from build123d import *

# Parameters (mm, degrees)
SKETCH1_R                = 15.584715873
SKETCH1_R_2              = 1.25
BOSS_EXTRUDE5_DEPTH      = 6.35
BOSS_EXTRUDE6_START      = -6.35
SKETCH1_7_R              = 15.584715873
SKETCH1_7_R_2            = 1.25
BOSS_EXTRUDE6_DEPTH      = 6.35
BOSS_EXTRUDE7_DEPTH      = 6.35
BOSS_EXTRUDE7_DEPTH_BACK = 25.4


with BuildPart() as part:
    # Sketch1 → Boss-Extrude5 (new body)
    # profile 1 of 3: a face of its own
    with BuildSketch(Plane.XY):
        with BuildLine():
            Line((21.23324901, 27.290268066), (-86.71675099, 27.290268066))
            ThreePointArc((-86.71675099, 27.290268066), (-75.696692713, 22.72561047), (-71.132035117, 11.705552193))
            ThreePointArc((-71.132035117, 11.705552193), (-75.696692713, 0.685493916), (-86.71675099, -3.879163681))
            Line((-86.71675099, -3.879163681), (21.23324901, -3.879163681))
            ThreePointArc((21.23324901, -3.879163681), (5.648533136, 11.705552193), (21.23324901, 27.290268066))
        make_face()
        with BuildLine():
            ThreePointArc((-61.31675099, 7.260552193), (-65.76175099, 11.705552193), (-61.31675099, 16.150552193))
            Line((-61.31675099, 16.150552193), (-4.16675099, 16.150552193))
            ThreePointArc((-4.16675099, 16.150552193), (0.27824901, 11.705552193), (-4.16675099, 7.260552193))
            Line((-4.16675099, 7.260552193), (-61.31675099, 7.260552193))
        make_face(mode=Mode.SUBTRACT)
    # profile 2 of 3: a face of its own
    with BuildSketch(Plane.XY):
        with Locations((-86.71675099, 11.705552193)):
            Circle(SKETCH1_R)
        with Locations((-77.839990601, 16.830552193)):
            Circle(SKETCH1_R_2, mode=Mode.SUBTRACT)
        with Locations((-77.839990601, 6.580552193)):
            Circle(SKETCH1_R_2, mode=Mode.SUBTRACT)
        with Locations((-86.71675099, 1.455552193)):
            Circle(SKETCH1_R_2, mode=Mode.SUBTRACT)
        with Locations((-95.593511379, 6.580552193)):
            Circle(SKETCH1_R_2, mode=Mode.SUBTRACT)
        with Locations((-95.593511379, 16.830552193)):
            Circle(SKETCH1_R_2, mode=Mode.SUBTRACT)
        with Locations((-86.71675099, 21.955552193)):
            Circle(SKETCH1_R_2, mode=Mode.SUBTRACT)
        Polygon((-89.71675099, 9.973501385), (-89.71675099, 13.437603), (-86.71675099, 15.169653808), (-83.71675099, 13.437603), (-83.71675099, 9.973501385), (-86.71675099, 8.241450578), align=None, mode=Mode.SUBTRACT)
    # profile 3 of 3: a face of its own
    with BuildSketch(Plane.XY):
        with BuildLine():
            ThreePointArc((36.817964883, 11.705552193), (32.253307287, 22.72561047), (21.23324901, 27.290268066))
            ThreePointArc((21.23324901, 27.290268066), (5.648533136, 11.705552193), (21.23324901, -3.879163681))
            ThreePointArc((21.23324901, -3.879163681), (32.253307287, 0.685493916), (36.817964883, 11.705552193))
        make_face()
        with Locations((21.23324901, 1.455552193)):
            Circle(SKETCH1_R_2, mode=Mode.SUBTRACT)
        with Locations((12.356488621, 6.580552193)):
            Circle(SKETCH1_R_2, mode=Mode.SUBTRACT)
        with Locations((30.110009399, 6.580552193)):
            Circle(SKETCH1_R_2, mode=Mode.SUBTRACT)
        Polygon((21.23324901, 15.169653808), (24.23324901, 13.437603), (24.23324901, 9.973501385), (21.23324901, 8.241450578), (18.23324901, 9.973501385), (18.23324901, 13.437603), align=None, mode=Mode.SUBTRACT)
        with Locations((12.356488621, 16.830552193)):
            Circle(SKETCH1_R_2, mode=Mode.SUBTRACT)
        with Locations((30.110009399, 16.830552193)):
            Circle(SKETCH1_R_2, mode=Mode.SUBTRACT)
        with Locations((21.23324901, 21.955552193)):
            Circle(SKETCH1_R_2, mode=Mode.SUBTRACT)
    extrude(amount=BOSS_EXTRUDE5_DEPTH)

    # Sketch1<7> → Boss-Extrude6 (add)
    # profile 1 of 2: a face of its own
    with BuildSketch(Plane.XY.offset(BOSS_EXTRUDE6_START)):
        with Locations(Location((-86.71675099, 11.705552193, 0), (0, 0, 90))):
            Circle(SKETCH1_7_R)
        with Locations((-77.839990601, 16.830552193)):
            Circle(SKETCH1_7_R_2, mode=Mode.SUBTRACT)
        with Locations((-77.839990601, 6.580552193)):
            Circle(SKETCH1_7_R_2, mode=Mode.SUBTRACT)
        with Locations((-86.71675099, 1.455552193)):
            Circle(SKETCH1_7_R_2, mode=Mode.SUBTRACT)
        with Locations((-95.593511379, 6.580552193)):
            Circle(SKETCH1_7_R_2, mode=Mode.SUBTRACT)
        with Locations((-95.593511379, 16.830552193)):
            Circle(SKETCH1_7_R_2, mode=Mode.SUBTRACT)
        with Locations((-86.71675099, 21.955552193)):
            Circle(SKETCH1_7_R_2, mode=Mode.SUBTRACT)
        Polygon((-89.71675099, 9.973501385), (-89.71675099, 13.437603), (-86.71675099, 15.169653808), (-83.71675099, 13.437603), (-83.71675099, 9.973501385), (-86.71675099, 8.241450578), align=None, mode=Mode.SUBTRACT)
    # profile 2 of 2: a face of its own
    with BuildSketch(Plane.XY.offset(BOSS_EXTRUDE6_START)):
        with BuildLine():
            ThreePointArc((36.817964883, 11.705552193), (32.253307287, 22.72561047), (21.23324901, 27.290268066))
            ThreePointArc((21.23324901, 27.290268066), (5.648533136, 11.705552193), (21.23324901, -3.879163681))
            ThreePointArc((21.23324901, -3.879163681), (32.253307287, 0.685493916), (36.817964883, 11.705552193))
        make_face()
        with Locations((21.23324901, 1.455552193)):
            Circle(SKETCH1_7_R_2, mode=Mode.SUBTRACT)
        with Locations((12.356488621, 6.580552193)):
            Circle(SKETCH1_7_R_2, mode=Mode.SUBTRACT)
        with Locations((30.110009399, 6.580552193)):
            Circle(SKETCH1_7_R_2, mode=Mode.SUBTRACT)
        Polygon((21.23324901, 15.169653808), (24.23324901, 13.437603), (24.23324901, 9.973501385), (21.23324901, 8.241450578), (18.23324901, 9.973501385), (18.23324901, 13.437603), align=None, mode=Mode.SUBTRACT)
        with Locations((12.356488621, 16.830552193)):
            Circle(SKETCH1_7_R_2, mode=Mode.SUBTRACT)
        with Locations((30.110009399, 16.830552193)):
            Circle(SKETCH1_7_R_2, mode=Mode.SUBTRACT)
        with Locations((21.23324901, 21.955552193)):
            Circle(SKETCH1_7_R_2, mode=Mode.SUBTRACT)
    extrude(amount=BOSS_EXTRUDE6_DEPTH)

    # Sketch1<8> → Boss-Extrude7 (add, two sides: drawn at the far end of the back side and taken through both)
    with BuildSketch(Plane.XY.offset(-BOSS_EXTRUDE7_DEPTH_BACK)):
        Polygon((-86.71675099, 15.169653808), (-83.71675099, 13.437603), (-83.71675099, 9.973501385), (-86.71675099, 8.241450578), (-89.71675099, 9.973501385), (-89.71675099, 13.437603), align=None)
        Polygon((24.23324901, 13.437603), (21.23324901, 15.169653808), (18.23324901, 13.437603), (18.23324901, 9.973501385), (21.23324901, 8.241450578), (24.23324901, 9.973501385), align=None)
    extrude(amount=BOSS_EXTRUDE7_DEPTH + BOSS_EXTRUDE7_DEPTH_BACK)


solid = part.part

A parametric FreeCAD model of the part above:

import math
import FreeCAD as App
import Part
import Sketcher
from FreeCAD import Vector
Q = App.Units.Quantity


def add_polygon(sketch, points):
    """Adds a closed chain of lines whose ends are joined by coincident constraints."""
    first, n = sketch.GeometryCount, len(points)
    for a, b in zip(points, points[1:] + points[:1]):
        sketch.addGeometry(Part.LineSegment(App.Vector(*a, 0), App.Vector(*b, 0)), False)
    for i in range(n):
        sketch.addConstraint(Sketcher.Constraint("Coincident", first + i, 2, first + (i + 1) % n, 1))

doc = App.newDocument("Part")
body = doc.addObject("PartDesign::Body", "Body")

# Sketch on XY plane
sketch1 = doc.addObject("Sketcher::SketchObject", "Sketch")
body.addObject(sketch1)
sketch1.AttachmentSupport = (doc.XY_Plane, [""])
sketch1.MapMode = "FlatFace"
sketch1.addGeometry(Part.LineSegment(Vector(21.233249, 27.290268, 0), Vector(-86.716751, 27.290268, 0)), False)  # 0
sketch1.addGeometry(Part.ArcOfCircle(Part.Circle(Vector(-86.716751, 11.705552, 0), Vector(0, 0, 1), 15.584716), math.radians(90), math.radians(270)), False)  # 1
sketch1.addGeometry(Part.LineSegment(Vector(-86.716751, -3.879164, 0), Vector(21.233249, -3.879164, 0)), False)  # 2
sketch1.addGeometry(Part.ArcOfCircle(Part.Circle(Vector(21.233249, 11.705552, 0), Vector(0, 0, 1), 15.584716), math.radians(-90), math.radians(0)), False)  # 3
sketch1.addGeometry(Part.ArcOfCircle(Part.Circle(Vector(21.233249, 11.705552, 0), Vector(0, 0, 1), 15.584716), math.radians(0), math.radians(90)), False)  # 4
sketch1.addGeometry(Part.LineSegment(Vector(-4.166751, 7.260552, 0), Vector(-61.316751, 7.260552, 0)), False)  # 5
sketch1.addGeometry(Part.ArcOfCircle(Part.Circle(Vector(-61.316751, 11.705552, 0), Vector(0, 0, 1), 4.445), math.radians(90), math.radians(270)), False)  # 6
sketch1.addGeometry(Part.LineSegment(Vector(-61.316751, 16.150552, 0), Vector(-4.166751, 16.150552, 0)), False)  # 7
sketch1.addGeometry(Part.ArcOfCircle(Part.Circle(Vector(-4.166751, 11.705552, 0), Vector(0, 0, 1), 4.445), math.radians(-90), math.radians(90)), False)  # 8
sketch1.addGeometry(Part.Circle(Vector(21.233249, 21.955552, 0), Vector(0, 0, 1), 1.25), False)  # 9
sketch1.addGeometry(Part.Circle(Vector(12.356489, 6.580552, 0), Vector(0, 0, 1), 1.25), False)  # 10
sketch1.addGeometry(Part.Circle(Vector(21.233249, 1.455552, 0), Vector(0, 0, 1), 1.25), False)  # 11
sketch1.addGeometry(Part.Circle(Vector(30.110009, 6.580552, 0), Vector(0, 0, 1), 1.25), False)  # 12
sketch1.addGeometry(Part.Circle(Vector(12.356489, 16.830552, 0), Vector(0, 0, 1), 1.25), False)  # 13
add_polygon(sketch1, [(18.233249, 13.437603), (21.233249, 15.169654), (24.233249, 13.437603), (24.233249, 9.973501), (21.233249, 8.241451), (18.233249, 9.973501)])  # lines 14-19
sketch1.addGeometry(Part.Circle(Vector(30.110009, 16.830552, 0), Vector(0, 0, 1), 1.25), False)  # 20
sketch1.addGeometry(Part.Circle(Vector(-86.716751, 21.955552, 0), Vector(0, 0, 1), 1.25), False)  # 21
sketch1.addGeometry(Part.Circle(Vector(-77.839991, 16.830552, 0), Vector(0, 0, 1), 1.25), False)  # 22
sketch1.addGeometry(Part.Circle(Vector(-95.593511, 6.580552, 0), Vector(0, 0, 1), 1.25), False)  # 23
sketch1.addGeometry(Part.Circle(Vector(-86.716751, 1.455552, 0), Vector(0, 0, 1), 1.25), False)  # 24
add_polygon(sketch1, [(-86.716751, 8.241451), (-89.716751, 9.973501), (-89.716751, 13.437603), (-86.716751, 15.169654), (-83.716751, 13.437603), (-83.716751, 9.973501)])  # lines 25-30
sketch1.addGeometry(Part.Circle(Vector(-77.839991, 6.580552, 0), Vector(0, 0, 1), 1.25), False)  # 31
sketch1.addGeometry(Part.Circle(Vector(-95.593511, 16.830552, 0), Vector(0, 0, 1), 1.25), False)  # 32
sketch1.addConstraint([
    Sketcher.Constraint("Tangent", 0, 2, 1, 1),
    Sketcher.Constraint("Tangent", 1, 2, 2, 1),
    Sketcher.Constraint("Tangent", 2, 2, 3, 1),
    Sketcher.Constraint("Tangent", 3, 2, 4, 1),
    Sketcher.Constraint("Tangent", 4, 2, 0, 1),
    Sketcher.Constraint("Tangent", 5, 2, 6, 2),
    Sketcher.Constraint("Tangent", 6, 1, 7, 1),
    Sketcher.Constraint("Tangent", 7, 2, 8, 2),
    Sketcher.Constraint("Tangent", 8, 1, 5, 1),
    Sketcher.Constraint("Horizontal", 0),
    Sketcher.Constraint("Horizontal", 2),
    Sketcher.Constraint("Horizontal", 5),
    Sketcher.Constraint("Horizontal", 7),
    Sketcher.Constraint("Vertical", 16),
    Sketcher.Constraint("Vertical", 19),
    Sketcher.Constraint("Vertical", 26),
    Sketcher.Constraint("Vertical", 29),
    Sketcher.Constraint("Equal", 1, 3),
    Sketcher.Constraint("Equal", 9, 10),
    Sketcher.Constraint("Equal", 10, 11),
    Sketcher.Constraint("Equal", 11, 12),
    Sketcher.Constraint("Equal", 12, 13),
    Sketcher.Constraint("Equal", 13, 20),
    Sketcher.Constraint("Equal", 20, 21),
    Sketcher.Constraint("Equal", 21, 22),
    Sketcher.Constraint("Equal", 22, 23),
    Sketcher.Constraint("Equal", 23, 24),
    Sketcher.Constraint("Equal", 24, 31),
    Sketcher.Constraint("Equal", 31, 32),
    Sketcher.Constraint("Parallel", 14, 17),
    Sketcher.Constraint("Parallel", 15, 18),
    Sketcher.Constraint("Parallel", 18, 25),
    Sketcher.Constraint("Parallel", 17, 27),
    Sketcher.Constraint("Parallel", 25, 28),
    Sketcher.Constraint("Parallel", 27, 30),
    Sketcher.Constraint("Horizontal", 4, 3, 6, 3),
    Sketcher.Constraint("Horizontal", 10, 3, 12, 3),
    Sketcher.Constraint("Horizontal", 13, 3, 20, 3),
    Sketcher.Constraint("Horizontal", 9, 3, 21, 3),
    Sketcher.Constraint("Horizontal", 20, 3, 22, 3),
    Sketcher.Constraint("Horizontal", 12, 3, 23, 3),
    Sketcher.Constraint("Horizontal", 11, 3, 24, 3),
    Sketcher.Constraint("Horizontal", 23, 3, 31, 3),
    Sketcher.Constraint("Horizontal", 22, 3, 32, 3),
    Sketcher.Constraint("Horizontal", 8, 3, 3, 2),
    Sketcher.Constraint("Horizontal", 16, 2, 18, 2),
    Sketcher.Constraint("Horizontal", 15, 2, 19, 2),
    Sketcher.Constraint("Horizontal", 18, 2, 25, 2),
    Sketcher.Constraint("Horizontal", 19, 2, 26, 2),
    Sketcher.Constraint("Horizontal", 14, 2, 27, 2),
    Sketcher.Constraint("Horizontal", 26, 2, 28, 2),
    Sketcher.Constraint("Horizontal", 25, 2, 29, 2),
    Sketcher.Constraint("Vertical", 4, 3, 9, 3),
    Sketcher.Constraint("Vertical", 9, 3, 11, 3),
    Sketcher.Constraint("Vertical", 10, 3, 13, 3),
    Sketcher.Constraint("Vertical", 12, 3, 20, 3),
    Sketcher.Constraint("Vertical", 1, 3, 21, 3),
    Sketcher.Constraint("Vertical", 21, 3, 24, 3),
    Sketcher.Constraint("Vertical", 22, 3, 31, 3),
    Sketcher.Constraint("Vertical", 23, 3, 32, 3),
    Sketcher.Constraint("Vertical", 4, 2, 14, 2),
    Sketcher.Constraint("Vertical", 14, 2, 17, 2),
    Sketcher.Constraint("Vertical", 1, 2, 27, 2),
    Sketcher.Constraint("Angle", 14, Q("30 deg")),
    Sketcher.Constraint("Radius", 6, Q("0.175 in")),
    Sketcher.Constraint("DistanceX", 1, 3, 6, 3, Q("1 in")),
    Sketcher.Constraint("DistanceX", 8, 3, 3, 3, Q("1 in")),
    Sketcher.Constraint("DistanceX", 0, 2, 0, 1, Q("4.25 in")),
    Sketcher.Constraint("Diameter", 9, Q("2.5 mm")),
    Sketcher.Constraint("DistanceY", 16, 2, 16, 1, Q("3.464102 mm")),
    Sketcher.Constraint("Radius", 1, Q("15.584716 mm")),
    Sketcher.Constraint("DistanceY", 22, 3, 0, 2, Q("0.4117998 in")),
    Sketcher.Constraint("DistanceY", 1, 2, 31, 3, Q("0.4117998 in")),
    Sketcher.Constraint("Distance", 14, Q("3.464102 mm")),
    Sketcher.Constraint("DistanceY", -1, 1, 16, 2, Q("9.973501 mm")),
    Sketcher.Constraint("DistanceY", 4, 3, 9, 3, Q("10.25 mm")),
    Sketcher.Constraint("DistanceY", 11, 3, 3, 3, Q("10.25 mm")),
    Sketcher.Constraint("DistanceY", 4, 3, 14, 2, Q("3.464102 mm")),
    Sketcher.Constraint("DistanceX", 1, 3, -1, 1, Q("86.716751 mm")),
    Sketcher.Constraint("DistanceX", -1, 1, 10, 3, Q("12.356489 mm")),
    Sketcher.Constraint("DistanceX", -1, 1, 12, 3, Q("30.110009 mm")),
    Sketcher.Constraint("DistanceX", 22, 3, -1, 1, Q("77.839991 mm")),
    Sketcher.Constraint("DistanceX", 23, 3, -1, 1, Q("95.593511 mm")),
])
pad1 = doc.addObject("PartDesign::Pad", "Pad")
body.addObject(pad1)
pad1.Profile = sketch1
pad1.Length = Q("0.25 in")

# Sketch on XY plane
sketch2 = doc.addObject("Sketcher::SketchObject", "Sketch001")
body.addObject(sketch2)
sketch2.AttachmentSupport = (doc.XY_Plane, [""])
sketch2.MapMode = "FlatFace"
sketch2.AttachmentOffset = App.Placement(Vector(0, 0, -0.25 * 25.4), App.Rotation())
sketch2.addGeometry(Part.Circle(Vector(-86.716751, 11.705552, 0), Vector(0, 0, 1), 15.584716), False)  # 0
sketch2.addGeometry(Part.Circle(Vector(-77.839991, 6.580552, 0), Vector(0, 0, 1), 1.25), False)  # 1
sketch2.addGeometry(Part.Circle(Vector(-86.716751, 1.455552, 0), Vector(0, 0, 1), 1.25), False)  # 2
sketch2.addGeometry(Part.Circle(Vector(-77.839991, 16.830552, 0), Vector(0, 0, 1), 1.25), False)  # 3
add_polygon(sketch2, [(-86.716751, 8.241451), (-89.716751, 9.973501), (-89.716751, 13.437603), (-86.716751, 15.169654), (-83.716751, 13.437603), (-83.716751, 9.973501)])  # lines 4-9
sketch2.addGeometry(Part.Circle(Vector(-86.716751, 21.955552, 0), Vector(0, 0, 1), 1.25), False)  # 10
sketch2.addGeometry(Part.Circle(Vector(-95.593511, 6.580552, 0), Vector(0, 0, 1), 1.25), False)  # 11
sketch2.addGeometry(Part.Circle(Vector(-95.593511, 16.830552, 0), Vector(0, 0, 1), 1.25), False)  # 12
sketch2.addGeometry(Part.ArcOfCircle(Part.Circle(Vector(21.233249, 11.705552, 0), Vector(0, 0, 1), 15.584716), math.radians(0), math.radians(90)), False)  # 13
sketch2.addGeometry(Part.ArcOfCircle(Part.Circle(Vector(21.233249, 11.705552, 0), Vector(0, 0, 1), 15.584716), math.radians(90), math.radians(270)), False)  # 14
sketch2.addGeometry(Part.ArcOfCircle(Part.Circle(Vector(21.233249, 11.705552, 0), Vector(0, 0, 1), 15.584716), math.radians(-90), math.radians(0)), False)  # 15
sketch2.addGeometry(Part.Circle(Vector(12.356489, 6.580552, 0), Vector(0, 0, 1), 1.25), False)  # 16
sketch2.addGeometry(Part.Circle(Vector(21.233249, 1.455552, 0), Vector(0, 0, 1), 1.25), False)  # 17
sketch2.addGeometry(Part.Circle(Vector(30.110009, 6.580552, 0), Vector(0, 0, 1), 1.25), False)  # 18
sketch2.addGeometry(Part.Circle(Vector(12.356489, 16.830552, 0), Vector(0, 0, 1), 1.25), False)  # 19
add_polygon(sketch2, [(18.233249, 13.437603), (21.233249, 15.169654), (24.233249, 13.437603), (24.233249, 9.973501), (21.233249, 8.241451), (18.233249, 9.973501)])  # lines 20-25
sketch2.addGeometry(Part.Circle(Vector(30.110009, 16.830552, 0), Vector(0, 0, 1), 1.25), False)  # 26
sketch2.addGeometry(Part.Circle(Vector(21.233249, 21.955552, 0), Vector(0, 0, 1), 1.25), False)  # 27
sketch2.addConstraint([
    Sketcher.Constraint("Tangent", 13, 2, 14, 1),
    Sketcher.Constraint("Tangent", 14, 2, 15, 1),
    Sketcher.Constraint("Tangent", 15, 2, 13, 1),
    Sketcher.Constraint("Vertical", 5),
    Sketcher.Constraint("Vertical", 8),
    Sketcher.Constraint("Vertical", 22),
    Sketcher.Constraint("Vertical", 25),
    Sketcher.Constraint("Equal", 1, 2),
    Sketcher.Constraint("Equal", 2, 3),
    Sketcher.Constraint("Equal", 3, 10),
    Sketcher.Constraint("Equal", 10, 11),
    Sketcher.Constraint("Equal", 11, 12),
    Sketcher.Constraint("Equal", 0, 13),
    Sketcher.Constraint("Equal", 12, 16),
    Sketcher.Constraint("Equal", 16, 17),
    Sketcher.Constraint("Equal", 17, 18),
    Sketcher.Constraint("Equal", 18, 19),
    Sketcher.Constraint("Equal", 19, 26),
    Sketcher.Constraint("Equal", 26, 27),
    Sketcher.Constraint("Parallel", 4, 7),
    Sketcher.Constraint("Parallel", 6, 9),
    Sketcher.Constraint("Parallel", 9, 20),
    Sketcher.Constraint("Parallel", 7, 21),
    Sketcher.Constraint("Parallel", 20, 23),
    Sketcher.Constraint("Parallel", 21, 24),
    Sketcher.Constraint("Horizontal", 1, 3, 11, 3),
    Sketcher.Constraint("Horizontal", 3, 3, 12, 3),
    Sketcher.Constraint("Horizontal", 0, 3, 13, 3),
    Sketcher.Constraint("Horizontal", 11, 3, 16, 3),
    Sketcher.Constraint("Horizontal", 2, 3, 17, 3),
    Sketcher.Constraint("Horizontal", 16, 3, 18, 3),
    Sketcher.Constraint("Horizontal", 12, 3, 19, 3),
    Sketcher.Constraint("Horizontal", 19, 3, 26, 3),
    Sketcher.Constraint("Horizontal", 10, 3, 27, 3),
    Sketcher.Constraint("Horizontal", 5, 2, 7, 2),
    Sketcher.Constraint("Horizontal", 4, 2, 8, 2),
    Sketcher.Constraint("Horizontal", 14, 3, 15, 2),
    Sketcher.Constraint("Horizontal", 6, 2, 20, 2),
    Sketcher.Constraint("Horizontal", 7, 2, 21, 2),
    Sketcher.Constraint("Horizontal", 8, 2, 22, 2),
    Sketcher.Constraint("Horizontal", 9, 2, 23, 2),
    Sketcher.Constraint("Horizontal", 22, 2, 24, 2),
    Sketcher.Constraint("Vertical", 0, 3, 2, 3),
    Sketcher.Constraint("Vertical", 1, 3, 3, 3),
    Sketcher.Constraint("Vertical", 2, 3, 10, 3),
    Sketcher.Constraint("Vertical", 11, 3, 12, 3),
    Sketcher.Constraint("Vertical", 15, 3, 17, 3),
    Sketcher.Constraint("Vertical", 16, 3, 19, 3),
    Sketcher.Constraint("Vertical", 18, 3, 26, 3),
    Sketcher.Constraint("Vertical", 17, 3, 27, 3),
    Sketcher.Constraint("Vertical", 10, 3, 6, 2),
    Sketcher.Constraint("Vertical", 6, 2, 9, 2),
    Sketcher.Constraint("Vertical", 27, 3, 13, 2),
    Sketcher.Constraint("Vertical", 13, 2, 14, 2),
    Sketcher.Constraint("Vertical", 14, 2, 20, 2),
    Sketcher.Constraint("Angle", 4, Q("150 deg")),
    Sketcher.Constraint("Diameter", 1, Q("2.5 mm")),
    Sketcher.Constraint("DistanceX", 0, 3, 13, 3, Q("4.25 in")),
    Sketcher.Constraint("Diameter", 0, Q("31.169432 mm")),
    Sketcher.Constraint("DistanceY", 5, 1, 5, 2, Q("3.464102 mm")),
    Sketcher.Constraint("DistanceY", 26, 3, 13, 2, Q("0.4117998 in")),
    Sketcher.Constraint("DistanceY", 14, 2, 18, 3, Q("0.4117998 in")),
    Sketcher.Constraint("Distance", 4, Q("3.464102 mm")),
    Sketcher.Constraint("DistanceY", -1, 1, 4, 2, Q("9.973501 mm")),
    Sketcher.Constraint("DistanceY", 2, 3, 0, 3, Q("10.25 mm")),
    Sketcher.Constraint("DistanceY", 0, 3, 10, 3, Q("10.25 mm")),
    Sketcher.Constraint("DistanceY", 0, 3, 6, 2, Q("3.464102 mm")),
    Sketcher.Constraint("DistanceX", 0, 3, -1, 1, Q("86.716751 mm")),
    Sketcher.Constraint("DistanceX", 1, 3, -1, 1, Q("77.839991 mm")),
    Sketcher.Constraint("DistanceX", 11, 3, -1, 1, Q("95.593511 mm")),
    Sketcher.Constraint("DistanceX", -1, 1, 16, 3, Q("12.356489 mm")),
    Sketcher.Constraint("DistanceX", -1, 1, 18, 3, Q("30.110009 mm")),
])
pad2 = doc.addObject("PartDesign::Pad", "Pad001")
body.addObject(pad2)
pad2.Profile = sketch2
pad2.Length = Q("0.25 in")

# Sketch on XY plane
sketch3 = doc.addObject("Sketcher::SketchObject", "Sketch002")
body.addObject(sketch3)
sketch3.AttachmentSupport = (doc.XY_Plane, [""])
sketch3.MapMode = "FlatFace"
add_polygon(sketch3, [(-83.716751, 13.437603), (-86.716751, 15.169654), (-89.716751, 13.437603), (-89.716751, 9.973501), (-86.716751, 8.241451), (-83.716751, 9.973501)])  # lines 0-5
add_polygon(sketch3, [(24.233249, 13.437603), (21.233249, 15.169654), (18.233249, 13.437603), (18.233249, 9.973501), (21.233249, 8.241451), (24.233249, 9.973501)])  # lines 6-11
sketch3.addConstraint([
    Sketcher.Constraint("Vertical", 2),
    Sketcher.Constraint("Vertical", 5),
    Sketcher.Constraint("Vertical", 8),
    Sketcher.Constraint("Vertical", 11),
    Sketcher.Constraint("Parallel", 0, 3),
    Sketcher.Constraint("Parallel", 1, 4),
    Sketcher.Constraint("Parallel", 3, 6),
    Sketcher.Constraint("Parallel", 4, 7),
    Sketcher.Constraint("Parallel", 6, 9),
    Sketcher.Constraint("Parallel", 7, 10),
    Sketcher.Constraint("Horizontal", 2, 2, 4, 2),
    Sketcher.Constraint("Horizontal", 1, 2, 5, 2),
    Sketcher.Constraint("Horizontal", 0, 2, 6, 2),
    Sketcher.Constraint("Horizontal", 5, 2, 7, 2),
    Sketcher.Constraint("Horizontal", 4, 2, 8, 2),
    Sketcher.Constraint("Horizontal", 3, 2, 9, 2),
    Sketcher.Constraint("Horizontal", 8, 2, 10, 2),
    Sketcher.Constraint("Vertical", 0, 2, 3, 2),
    Sketcher.Constraint("Angle", 0, Q("150 deg")),
    Sketcher.Constraint("DistanceX", 0, 2, 6, 2, Q("4.25 in")),
    Sketcher.Constraint("DistanceY", 2, 2, 2, 1, Q("3.464102 mm")),
    Sketcher.Constraint("Distance", 0, Q("3.464102 mm")),
    Sketcher.Constraint("DistanceY", -1, 1, 2, 2, Q("9.973501 mm")),
    Sketcher.Constraint("DistanceX", 0, 2, -1, 1, Q("86.716751 mm")),
])
pad3 = doc.addObject("PartDesign::Pad", "Pad002")
body.addObject(pad3)
pad3.Profile = sketch3
pad3.Type = "TwoLengths"
pad3.Length = Q("0.25 in")
pad3.Length2 = Q("1 in")

doc.recompute()
